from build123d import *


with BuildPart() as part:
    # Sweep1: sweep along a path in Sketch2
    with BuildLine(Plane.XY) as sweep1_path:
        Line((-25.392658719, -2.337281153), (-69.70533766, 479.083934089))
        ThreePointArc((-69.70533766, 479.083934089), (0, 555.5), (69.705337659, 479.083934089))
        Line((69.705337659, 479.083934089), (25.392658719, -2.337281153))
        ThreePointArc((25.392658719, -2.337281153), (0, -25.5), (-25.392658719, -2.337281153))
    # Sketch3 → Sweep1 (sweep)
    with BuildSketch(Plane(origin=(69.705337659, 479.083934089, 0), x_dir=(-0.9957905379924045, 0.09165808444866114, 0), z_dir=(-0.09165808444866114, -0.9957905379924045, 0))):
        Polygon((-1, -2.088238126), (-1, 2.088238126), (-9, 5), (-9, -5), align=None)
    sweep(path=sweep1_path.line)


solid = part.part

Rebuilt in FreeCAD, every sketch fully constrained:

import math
import FreeCAD as App
import Part
import Sketcher
Q = App.Units.Quantity

doc = App.newDocument("Part")
body = doc.addObject("PartDesign::Body", "Body")

# Sketch on an angled plane
sketch1 = doc.addObject("Sketcher::SketchObject", "Sketch")
body.addObject(sketch1)
sketch1.Placement = App.Placement(App.Vector(69.705338, 479.083934, 0), App.Rotation(App.Vector(-0.995790538, 0.091658084, 0), App.Vector(0, 0, -1), App.Vector(-0.091658084, -0.995790538, 0), "ZXY"))
sketch1.addGeometry(Part.LineSegment(App.Vector(-1, -2.1, 0), App.Vector(-1, 2.1, 0)), False)
sketch1.addGeometry(Part.LineSegment(App.Vector(-1, 2.1, 0), App.Vector(-9, 5, 0)), False)
sketch1.addGeometry(Part.LineSegment(App.Vector(-9, 5, 0), App.Vector(-9, -5, 0)), False)
sketch1.addGeometry(Part.LineSegment(App.Vector(-9, -5, 0), App.Vector(-1, -2.1, 0)), False)
sketch1.addConstraint(Sketcher.Constraint("Coincident", 0, 2, 1, 1))
sketch1.addConstraint(Sketcher.Constraint("Coincident", 1, 2, 2, 1))
sketch1.addConstraint(Sketcher.Constraint("Coincident", 2, 2, 3, 1))
sketch1.addConstraint(Sketcher.Constraint("Coincident", 3, 2, 0, 1))
sketch1.addConstraint(Sketcher.Constraint("Vertical", 0))
sketch1.addConstraint(Sketcher.Constraint("Vertical", 2))
sketch1.addConstraint(Sketcher.Constraint("Equal", 1, 3))
sketch1.addConstraint(Sketcher.Constraint("DistanceY", 2, 2, 2, 1, 10.0))
sketch1.addConstraint(Sketcher.Constraint("Angle", 1, Q("160 deg")))
sketch1.addConstraint(Sketcher.Constraint("DistanceX", 0, 2, -1, 1, 1.0))
sketch1.addConstraint(Sketcher.Constraint("DistanceX", 1, 2, -1, 1, 9.0))
sketch1.addConstraint(Sketcher.Constraint("DistanceY", -1, 1, 1, 2, 5.0))

# Sketch on XY plane
sketch2 = doc.addObject("Sketcher::SketchObject", "Sketch001")
body.addObject(sketch2)
sketch2.AttachmentSupport = (doc.XY_Plane, [""])
sketch2.MapMode = "FlatFace"
sketch2.addGeometry(Part.LineSegment(App.Vector(-25, -2, 0), App.Vector(-70, 479, 0)), False)
sketch2.addGeometry(Part.ArcOfCircle(Part.Circle(App.Vector(0, 486, 0), App.Vector(0, 0, 1), 70), math.radians(-5), math.radians(185)), False)
sketch2.addGeometry(Part.LineSegment(App.Vector(70, 479, 0), App.Vector(25, -2, 0)), False)
sketch2.addGeometry(Part.ArcOfCircle(Part.Circle(App.Vector(0, 0, 0), App.Vector(0, 0, 1), 26), math.radians(-175), math.radians(-5)), False)
sketch2.addConstraint(Sketcher.Constraint("Tangent", 0, 2, 1, 2))
sketch2.addConstraint(Sketcher.Constraint("Tangent", 1, 1, 2, 1))
sketch2.addConstraint(Sketcher.Constraint("Tangent", 2, 2, 3, 2))
sketch2.addConstraint(Sketcher.Constraint("Tangent", 3, 1, 0, 1))
sketch2.addConstraint(Sketcher.Constraint("Coincident", 3, 3, -1, 1))
sketch2.addConstraint(Sketcher.Constraint("PointOnObject", 1, 3, -2))
sketch2.addConstraint(Sketcher.Constraint("Radius", 1, 70.0))
sketch2.addConstraint(Sketcher.Constraint("Radius", 3, 25.5))
sketch2.addConstraint(Sketcher.Constraint("DistanceY", -1, 1, 1, 3, 485.5))
doc.recompute()

additivepipe = doc.addObject("PartDesign::AdditivePipe", "AdditivePipe")
body.addObject(additivepipe)
additivepipe.Profile = sketch1
additivepipe.Spine = (sketch2, ["Edge1", "Edge2", "Edge3", "Edge4"])

doc.recompute()
